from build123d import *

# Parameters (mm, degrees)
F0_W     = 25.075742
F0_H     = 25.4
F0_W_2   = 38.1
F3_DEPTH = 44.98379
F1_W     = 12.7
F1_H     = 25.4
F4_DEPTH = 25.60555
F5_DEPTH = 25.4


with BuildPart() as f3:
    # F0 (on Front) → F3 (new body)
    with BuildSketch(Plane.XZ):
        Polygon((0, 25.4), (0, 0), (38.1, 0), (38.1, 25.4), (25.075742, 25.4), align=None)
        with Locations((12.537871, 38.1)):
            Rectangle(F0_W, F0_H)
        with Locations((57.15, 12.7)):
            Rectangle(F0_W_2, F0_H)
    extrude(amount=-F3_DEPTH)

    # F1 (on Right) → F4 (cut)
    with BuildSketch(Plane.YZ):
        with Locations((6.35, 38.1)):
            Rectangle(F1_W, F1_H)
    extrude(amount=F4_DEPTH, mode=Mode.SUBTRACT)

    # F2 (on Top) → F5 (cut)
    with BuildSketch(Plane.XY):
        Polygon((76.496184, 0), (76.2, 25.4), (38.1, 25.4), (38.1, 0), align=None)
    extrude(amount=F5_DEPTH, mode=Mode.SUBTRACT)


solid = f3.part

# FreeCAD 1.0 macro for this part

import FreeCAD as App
import Part
import Sketcher
from FreeCAD import Vector
Q = App.Units.Quantity

doc = App.newDocument("Part")
body = doc.addObject("PartDesign::Body", "Body")

# Sketch on XZ plane
sketch1 = body.newObject("Sketcher::SketchObject", "Sketch")
sketch1.AttachmentSupport = (doc.getObject("XZ_Plane"), [""])
sketch1.MapMode = "FlatFace"
sketch1.addGeometry([
    Part.LineSegment(Vector(0, 0, 0), Vector(76, 0, 0)),  # 0
    Part.LineSegment(Vector(76, 0, 0), Vector(76, 25, 0)),  # 1
    Part.LineSegment(Vector(76, 25, 0), Vector(25, 25, 0)),  # 2
    Part.LineSegment(Vector(25, 25, 0), Vector(25, 51, 0)),  # 3
    Part.LineSegment(Vector(25, 51, 0), Vector(0, 51, 0)),  # 4
    Part.LineSegment(Vector(0, 51, 0), Vector(0, 0, 0)),  # 5
], False)
sketch1.addConstraint([
    Sketcher.Constraint("Coincident", 0, 2, 1, 1),
    Sketcher.Constraint("Coincident", 1, 2, 2, 1),
    Sketcher.Constraint("Coincident", 2, 2, 3, 1),
    Sketcher.Constraint("Coincident", 3, 2, 4, 1),
    Sketcher.Constraint("Coincident", 4, 2, 5, 1),
    Sketcher.Constraint("Coincident", 5, 2, 0, 1),
    Sketcher.Constraint("Horizontal", 0),
    Sketcher.Constraint("Vertical", 1),
    Sketcher.Constraint("Horizontal", 2),
    Sketcher.Constraint("Vertical", 3),
    Sketcher.Constraint("Horizontal", 4),
    Sketcher.Constraint("Vertical", 5),
    Sketcher.Constraint("Coincident", 5, 2, -1, 1),
    Sketcher.Constraint("Equal", 1, 3),
    Sketcher.Constraint("DistanceX", 0, 1, 0, 2, Q("3 in")),
    Sketcher.Constraint("DistanceY", 1, 1, 1, 2, Q("1 in")),
    Sketcher.Constraint("DistanceX", 2, 2, 2, 1, 51.124258),
])
pad1 = body.newObject("PartDesign::Pad", "Pad")
pad1.Profile = sketch1
pad1.Length = 44.98379
pad1.Reversed = True

# Sketch on YZ plane
sketch2 = body.newObject("Sketcher::SketchObject", "Sketch001")
sketch2.AttachmentSupport = (doc.getObject("YZ_Plane"), [""])
sketch2.MapMode = "FlatFace"
sketch2.addGeometry([
    Part.LineSegment(Vector(0, 51, 0), Vector(0, 25, 0)),
    Part.LineSegment(Vector(0, 25, 0), Vector(13, 25, 0)),
    Part.LineSegment(Vector(13, 25, 0), Vector(13, 51, 0)),
    Part.LineSegment(Vector(13, 51, 0), Vector(0, 51, 0)),
], False)
sketch2.addConstraint([
    Sketcher.Constraint("Coincident", 0, 2, 1, 1),
    Sketcher.Constraint("Coincident", 1, 2, 2, 1),
    Sketcher.Constraint("Coincident", 2, 2, 3, 1),
    Sketcher.Constraint("Coincident", 3, 2, 0, 1),
    Sketcher.Constraint("Vertical", 0),
    Sketcher.Constraint("Horizontal", 1),
    Sketcher.Constraint("Vertical", 2),
    Sketcher.Constraint("Horizontal", 3),
    Sketcher.Constraint("PointOnObject", 0, 2, -2),
    Sketcher.Constraint("DistanceY", 0, 2, 0, 1, Q("1 in")),
    Sketcher.Constraint("DistanceX", 1, 1, 1, 2, Q("0.5 in")),
    Sketcher.Constraint("DistanceY", -1, 1, 0, 2, Q("1 in")),
])
pocket1 = body.newObject("PartDesign::Pocket", "Pocket")
pocket1.Profile = sketch2
pocket1.Length = 25.60555
pocket1.Reversed = True

# Sketch on XY plane
sketch3 = body.newObject("Sketcher::SketchObject", "Sketch002")
sketch3.AttachmentSupport = (doc.getObject("XY_Plane"), [""])
sketch3.MapMode = "FlatFace"
sketch3.addGeometry([
    Part.LineSegment(Vector(76, 0, 0), Vector(76, 25, 0)),
    Part.LineSegment(Vector(76, 25, 0), Vector(38, 25, 0)),
    Part.LineSegment(Vector(38, 25, 0), Vector(38, 0, 0)),
    Part.LineSegment(Vector(38, 0, 0), Vector(76, 0, 0)),
], False)
sketch3.addConstraint([
    Sketcher.Constraint("Coincident", 0, 2, 1, 1),
    Sketcher.Constraint("Coincident", 1, 2, 2, 1),
    Sketcher.Constraint("Coincident", 2, 2, 3, 1),
    Sketcher.Constraint("Coincident", 3, 2, 0, 1),
    Sketcher.Constraint("Horizontal", 1),
    Sketcher.Constraint("Vertical", 2),
    Sketcher.Constraint("Horizontal", 3),
    Sketcher.Constraint("PointOnObject", 2, 2, -1),
    Sketcher.Constraint("DistanceY", 2, 2, 2, 1, Q("1 in")),
    Sketcher.Constraint("DistanceX", 1, 2, 1, 1, Q("1.5 in")),
    Sketcher.Constraint("DistanceX", -1, 1, 0, 2, Q("3 in")),
    Sketcher.Constraint("DistanceX", 3, 1, 3, 2, 38.396184),
])
pocket2 = body.newObject("PartDesign::Pocket", "Pocket001")
pocket2.Profile = sketch3
pocket2.Length = Q("1 in")
pocket2.Reversed = True

doc.recompute()
